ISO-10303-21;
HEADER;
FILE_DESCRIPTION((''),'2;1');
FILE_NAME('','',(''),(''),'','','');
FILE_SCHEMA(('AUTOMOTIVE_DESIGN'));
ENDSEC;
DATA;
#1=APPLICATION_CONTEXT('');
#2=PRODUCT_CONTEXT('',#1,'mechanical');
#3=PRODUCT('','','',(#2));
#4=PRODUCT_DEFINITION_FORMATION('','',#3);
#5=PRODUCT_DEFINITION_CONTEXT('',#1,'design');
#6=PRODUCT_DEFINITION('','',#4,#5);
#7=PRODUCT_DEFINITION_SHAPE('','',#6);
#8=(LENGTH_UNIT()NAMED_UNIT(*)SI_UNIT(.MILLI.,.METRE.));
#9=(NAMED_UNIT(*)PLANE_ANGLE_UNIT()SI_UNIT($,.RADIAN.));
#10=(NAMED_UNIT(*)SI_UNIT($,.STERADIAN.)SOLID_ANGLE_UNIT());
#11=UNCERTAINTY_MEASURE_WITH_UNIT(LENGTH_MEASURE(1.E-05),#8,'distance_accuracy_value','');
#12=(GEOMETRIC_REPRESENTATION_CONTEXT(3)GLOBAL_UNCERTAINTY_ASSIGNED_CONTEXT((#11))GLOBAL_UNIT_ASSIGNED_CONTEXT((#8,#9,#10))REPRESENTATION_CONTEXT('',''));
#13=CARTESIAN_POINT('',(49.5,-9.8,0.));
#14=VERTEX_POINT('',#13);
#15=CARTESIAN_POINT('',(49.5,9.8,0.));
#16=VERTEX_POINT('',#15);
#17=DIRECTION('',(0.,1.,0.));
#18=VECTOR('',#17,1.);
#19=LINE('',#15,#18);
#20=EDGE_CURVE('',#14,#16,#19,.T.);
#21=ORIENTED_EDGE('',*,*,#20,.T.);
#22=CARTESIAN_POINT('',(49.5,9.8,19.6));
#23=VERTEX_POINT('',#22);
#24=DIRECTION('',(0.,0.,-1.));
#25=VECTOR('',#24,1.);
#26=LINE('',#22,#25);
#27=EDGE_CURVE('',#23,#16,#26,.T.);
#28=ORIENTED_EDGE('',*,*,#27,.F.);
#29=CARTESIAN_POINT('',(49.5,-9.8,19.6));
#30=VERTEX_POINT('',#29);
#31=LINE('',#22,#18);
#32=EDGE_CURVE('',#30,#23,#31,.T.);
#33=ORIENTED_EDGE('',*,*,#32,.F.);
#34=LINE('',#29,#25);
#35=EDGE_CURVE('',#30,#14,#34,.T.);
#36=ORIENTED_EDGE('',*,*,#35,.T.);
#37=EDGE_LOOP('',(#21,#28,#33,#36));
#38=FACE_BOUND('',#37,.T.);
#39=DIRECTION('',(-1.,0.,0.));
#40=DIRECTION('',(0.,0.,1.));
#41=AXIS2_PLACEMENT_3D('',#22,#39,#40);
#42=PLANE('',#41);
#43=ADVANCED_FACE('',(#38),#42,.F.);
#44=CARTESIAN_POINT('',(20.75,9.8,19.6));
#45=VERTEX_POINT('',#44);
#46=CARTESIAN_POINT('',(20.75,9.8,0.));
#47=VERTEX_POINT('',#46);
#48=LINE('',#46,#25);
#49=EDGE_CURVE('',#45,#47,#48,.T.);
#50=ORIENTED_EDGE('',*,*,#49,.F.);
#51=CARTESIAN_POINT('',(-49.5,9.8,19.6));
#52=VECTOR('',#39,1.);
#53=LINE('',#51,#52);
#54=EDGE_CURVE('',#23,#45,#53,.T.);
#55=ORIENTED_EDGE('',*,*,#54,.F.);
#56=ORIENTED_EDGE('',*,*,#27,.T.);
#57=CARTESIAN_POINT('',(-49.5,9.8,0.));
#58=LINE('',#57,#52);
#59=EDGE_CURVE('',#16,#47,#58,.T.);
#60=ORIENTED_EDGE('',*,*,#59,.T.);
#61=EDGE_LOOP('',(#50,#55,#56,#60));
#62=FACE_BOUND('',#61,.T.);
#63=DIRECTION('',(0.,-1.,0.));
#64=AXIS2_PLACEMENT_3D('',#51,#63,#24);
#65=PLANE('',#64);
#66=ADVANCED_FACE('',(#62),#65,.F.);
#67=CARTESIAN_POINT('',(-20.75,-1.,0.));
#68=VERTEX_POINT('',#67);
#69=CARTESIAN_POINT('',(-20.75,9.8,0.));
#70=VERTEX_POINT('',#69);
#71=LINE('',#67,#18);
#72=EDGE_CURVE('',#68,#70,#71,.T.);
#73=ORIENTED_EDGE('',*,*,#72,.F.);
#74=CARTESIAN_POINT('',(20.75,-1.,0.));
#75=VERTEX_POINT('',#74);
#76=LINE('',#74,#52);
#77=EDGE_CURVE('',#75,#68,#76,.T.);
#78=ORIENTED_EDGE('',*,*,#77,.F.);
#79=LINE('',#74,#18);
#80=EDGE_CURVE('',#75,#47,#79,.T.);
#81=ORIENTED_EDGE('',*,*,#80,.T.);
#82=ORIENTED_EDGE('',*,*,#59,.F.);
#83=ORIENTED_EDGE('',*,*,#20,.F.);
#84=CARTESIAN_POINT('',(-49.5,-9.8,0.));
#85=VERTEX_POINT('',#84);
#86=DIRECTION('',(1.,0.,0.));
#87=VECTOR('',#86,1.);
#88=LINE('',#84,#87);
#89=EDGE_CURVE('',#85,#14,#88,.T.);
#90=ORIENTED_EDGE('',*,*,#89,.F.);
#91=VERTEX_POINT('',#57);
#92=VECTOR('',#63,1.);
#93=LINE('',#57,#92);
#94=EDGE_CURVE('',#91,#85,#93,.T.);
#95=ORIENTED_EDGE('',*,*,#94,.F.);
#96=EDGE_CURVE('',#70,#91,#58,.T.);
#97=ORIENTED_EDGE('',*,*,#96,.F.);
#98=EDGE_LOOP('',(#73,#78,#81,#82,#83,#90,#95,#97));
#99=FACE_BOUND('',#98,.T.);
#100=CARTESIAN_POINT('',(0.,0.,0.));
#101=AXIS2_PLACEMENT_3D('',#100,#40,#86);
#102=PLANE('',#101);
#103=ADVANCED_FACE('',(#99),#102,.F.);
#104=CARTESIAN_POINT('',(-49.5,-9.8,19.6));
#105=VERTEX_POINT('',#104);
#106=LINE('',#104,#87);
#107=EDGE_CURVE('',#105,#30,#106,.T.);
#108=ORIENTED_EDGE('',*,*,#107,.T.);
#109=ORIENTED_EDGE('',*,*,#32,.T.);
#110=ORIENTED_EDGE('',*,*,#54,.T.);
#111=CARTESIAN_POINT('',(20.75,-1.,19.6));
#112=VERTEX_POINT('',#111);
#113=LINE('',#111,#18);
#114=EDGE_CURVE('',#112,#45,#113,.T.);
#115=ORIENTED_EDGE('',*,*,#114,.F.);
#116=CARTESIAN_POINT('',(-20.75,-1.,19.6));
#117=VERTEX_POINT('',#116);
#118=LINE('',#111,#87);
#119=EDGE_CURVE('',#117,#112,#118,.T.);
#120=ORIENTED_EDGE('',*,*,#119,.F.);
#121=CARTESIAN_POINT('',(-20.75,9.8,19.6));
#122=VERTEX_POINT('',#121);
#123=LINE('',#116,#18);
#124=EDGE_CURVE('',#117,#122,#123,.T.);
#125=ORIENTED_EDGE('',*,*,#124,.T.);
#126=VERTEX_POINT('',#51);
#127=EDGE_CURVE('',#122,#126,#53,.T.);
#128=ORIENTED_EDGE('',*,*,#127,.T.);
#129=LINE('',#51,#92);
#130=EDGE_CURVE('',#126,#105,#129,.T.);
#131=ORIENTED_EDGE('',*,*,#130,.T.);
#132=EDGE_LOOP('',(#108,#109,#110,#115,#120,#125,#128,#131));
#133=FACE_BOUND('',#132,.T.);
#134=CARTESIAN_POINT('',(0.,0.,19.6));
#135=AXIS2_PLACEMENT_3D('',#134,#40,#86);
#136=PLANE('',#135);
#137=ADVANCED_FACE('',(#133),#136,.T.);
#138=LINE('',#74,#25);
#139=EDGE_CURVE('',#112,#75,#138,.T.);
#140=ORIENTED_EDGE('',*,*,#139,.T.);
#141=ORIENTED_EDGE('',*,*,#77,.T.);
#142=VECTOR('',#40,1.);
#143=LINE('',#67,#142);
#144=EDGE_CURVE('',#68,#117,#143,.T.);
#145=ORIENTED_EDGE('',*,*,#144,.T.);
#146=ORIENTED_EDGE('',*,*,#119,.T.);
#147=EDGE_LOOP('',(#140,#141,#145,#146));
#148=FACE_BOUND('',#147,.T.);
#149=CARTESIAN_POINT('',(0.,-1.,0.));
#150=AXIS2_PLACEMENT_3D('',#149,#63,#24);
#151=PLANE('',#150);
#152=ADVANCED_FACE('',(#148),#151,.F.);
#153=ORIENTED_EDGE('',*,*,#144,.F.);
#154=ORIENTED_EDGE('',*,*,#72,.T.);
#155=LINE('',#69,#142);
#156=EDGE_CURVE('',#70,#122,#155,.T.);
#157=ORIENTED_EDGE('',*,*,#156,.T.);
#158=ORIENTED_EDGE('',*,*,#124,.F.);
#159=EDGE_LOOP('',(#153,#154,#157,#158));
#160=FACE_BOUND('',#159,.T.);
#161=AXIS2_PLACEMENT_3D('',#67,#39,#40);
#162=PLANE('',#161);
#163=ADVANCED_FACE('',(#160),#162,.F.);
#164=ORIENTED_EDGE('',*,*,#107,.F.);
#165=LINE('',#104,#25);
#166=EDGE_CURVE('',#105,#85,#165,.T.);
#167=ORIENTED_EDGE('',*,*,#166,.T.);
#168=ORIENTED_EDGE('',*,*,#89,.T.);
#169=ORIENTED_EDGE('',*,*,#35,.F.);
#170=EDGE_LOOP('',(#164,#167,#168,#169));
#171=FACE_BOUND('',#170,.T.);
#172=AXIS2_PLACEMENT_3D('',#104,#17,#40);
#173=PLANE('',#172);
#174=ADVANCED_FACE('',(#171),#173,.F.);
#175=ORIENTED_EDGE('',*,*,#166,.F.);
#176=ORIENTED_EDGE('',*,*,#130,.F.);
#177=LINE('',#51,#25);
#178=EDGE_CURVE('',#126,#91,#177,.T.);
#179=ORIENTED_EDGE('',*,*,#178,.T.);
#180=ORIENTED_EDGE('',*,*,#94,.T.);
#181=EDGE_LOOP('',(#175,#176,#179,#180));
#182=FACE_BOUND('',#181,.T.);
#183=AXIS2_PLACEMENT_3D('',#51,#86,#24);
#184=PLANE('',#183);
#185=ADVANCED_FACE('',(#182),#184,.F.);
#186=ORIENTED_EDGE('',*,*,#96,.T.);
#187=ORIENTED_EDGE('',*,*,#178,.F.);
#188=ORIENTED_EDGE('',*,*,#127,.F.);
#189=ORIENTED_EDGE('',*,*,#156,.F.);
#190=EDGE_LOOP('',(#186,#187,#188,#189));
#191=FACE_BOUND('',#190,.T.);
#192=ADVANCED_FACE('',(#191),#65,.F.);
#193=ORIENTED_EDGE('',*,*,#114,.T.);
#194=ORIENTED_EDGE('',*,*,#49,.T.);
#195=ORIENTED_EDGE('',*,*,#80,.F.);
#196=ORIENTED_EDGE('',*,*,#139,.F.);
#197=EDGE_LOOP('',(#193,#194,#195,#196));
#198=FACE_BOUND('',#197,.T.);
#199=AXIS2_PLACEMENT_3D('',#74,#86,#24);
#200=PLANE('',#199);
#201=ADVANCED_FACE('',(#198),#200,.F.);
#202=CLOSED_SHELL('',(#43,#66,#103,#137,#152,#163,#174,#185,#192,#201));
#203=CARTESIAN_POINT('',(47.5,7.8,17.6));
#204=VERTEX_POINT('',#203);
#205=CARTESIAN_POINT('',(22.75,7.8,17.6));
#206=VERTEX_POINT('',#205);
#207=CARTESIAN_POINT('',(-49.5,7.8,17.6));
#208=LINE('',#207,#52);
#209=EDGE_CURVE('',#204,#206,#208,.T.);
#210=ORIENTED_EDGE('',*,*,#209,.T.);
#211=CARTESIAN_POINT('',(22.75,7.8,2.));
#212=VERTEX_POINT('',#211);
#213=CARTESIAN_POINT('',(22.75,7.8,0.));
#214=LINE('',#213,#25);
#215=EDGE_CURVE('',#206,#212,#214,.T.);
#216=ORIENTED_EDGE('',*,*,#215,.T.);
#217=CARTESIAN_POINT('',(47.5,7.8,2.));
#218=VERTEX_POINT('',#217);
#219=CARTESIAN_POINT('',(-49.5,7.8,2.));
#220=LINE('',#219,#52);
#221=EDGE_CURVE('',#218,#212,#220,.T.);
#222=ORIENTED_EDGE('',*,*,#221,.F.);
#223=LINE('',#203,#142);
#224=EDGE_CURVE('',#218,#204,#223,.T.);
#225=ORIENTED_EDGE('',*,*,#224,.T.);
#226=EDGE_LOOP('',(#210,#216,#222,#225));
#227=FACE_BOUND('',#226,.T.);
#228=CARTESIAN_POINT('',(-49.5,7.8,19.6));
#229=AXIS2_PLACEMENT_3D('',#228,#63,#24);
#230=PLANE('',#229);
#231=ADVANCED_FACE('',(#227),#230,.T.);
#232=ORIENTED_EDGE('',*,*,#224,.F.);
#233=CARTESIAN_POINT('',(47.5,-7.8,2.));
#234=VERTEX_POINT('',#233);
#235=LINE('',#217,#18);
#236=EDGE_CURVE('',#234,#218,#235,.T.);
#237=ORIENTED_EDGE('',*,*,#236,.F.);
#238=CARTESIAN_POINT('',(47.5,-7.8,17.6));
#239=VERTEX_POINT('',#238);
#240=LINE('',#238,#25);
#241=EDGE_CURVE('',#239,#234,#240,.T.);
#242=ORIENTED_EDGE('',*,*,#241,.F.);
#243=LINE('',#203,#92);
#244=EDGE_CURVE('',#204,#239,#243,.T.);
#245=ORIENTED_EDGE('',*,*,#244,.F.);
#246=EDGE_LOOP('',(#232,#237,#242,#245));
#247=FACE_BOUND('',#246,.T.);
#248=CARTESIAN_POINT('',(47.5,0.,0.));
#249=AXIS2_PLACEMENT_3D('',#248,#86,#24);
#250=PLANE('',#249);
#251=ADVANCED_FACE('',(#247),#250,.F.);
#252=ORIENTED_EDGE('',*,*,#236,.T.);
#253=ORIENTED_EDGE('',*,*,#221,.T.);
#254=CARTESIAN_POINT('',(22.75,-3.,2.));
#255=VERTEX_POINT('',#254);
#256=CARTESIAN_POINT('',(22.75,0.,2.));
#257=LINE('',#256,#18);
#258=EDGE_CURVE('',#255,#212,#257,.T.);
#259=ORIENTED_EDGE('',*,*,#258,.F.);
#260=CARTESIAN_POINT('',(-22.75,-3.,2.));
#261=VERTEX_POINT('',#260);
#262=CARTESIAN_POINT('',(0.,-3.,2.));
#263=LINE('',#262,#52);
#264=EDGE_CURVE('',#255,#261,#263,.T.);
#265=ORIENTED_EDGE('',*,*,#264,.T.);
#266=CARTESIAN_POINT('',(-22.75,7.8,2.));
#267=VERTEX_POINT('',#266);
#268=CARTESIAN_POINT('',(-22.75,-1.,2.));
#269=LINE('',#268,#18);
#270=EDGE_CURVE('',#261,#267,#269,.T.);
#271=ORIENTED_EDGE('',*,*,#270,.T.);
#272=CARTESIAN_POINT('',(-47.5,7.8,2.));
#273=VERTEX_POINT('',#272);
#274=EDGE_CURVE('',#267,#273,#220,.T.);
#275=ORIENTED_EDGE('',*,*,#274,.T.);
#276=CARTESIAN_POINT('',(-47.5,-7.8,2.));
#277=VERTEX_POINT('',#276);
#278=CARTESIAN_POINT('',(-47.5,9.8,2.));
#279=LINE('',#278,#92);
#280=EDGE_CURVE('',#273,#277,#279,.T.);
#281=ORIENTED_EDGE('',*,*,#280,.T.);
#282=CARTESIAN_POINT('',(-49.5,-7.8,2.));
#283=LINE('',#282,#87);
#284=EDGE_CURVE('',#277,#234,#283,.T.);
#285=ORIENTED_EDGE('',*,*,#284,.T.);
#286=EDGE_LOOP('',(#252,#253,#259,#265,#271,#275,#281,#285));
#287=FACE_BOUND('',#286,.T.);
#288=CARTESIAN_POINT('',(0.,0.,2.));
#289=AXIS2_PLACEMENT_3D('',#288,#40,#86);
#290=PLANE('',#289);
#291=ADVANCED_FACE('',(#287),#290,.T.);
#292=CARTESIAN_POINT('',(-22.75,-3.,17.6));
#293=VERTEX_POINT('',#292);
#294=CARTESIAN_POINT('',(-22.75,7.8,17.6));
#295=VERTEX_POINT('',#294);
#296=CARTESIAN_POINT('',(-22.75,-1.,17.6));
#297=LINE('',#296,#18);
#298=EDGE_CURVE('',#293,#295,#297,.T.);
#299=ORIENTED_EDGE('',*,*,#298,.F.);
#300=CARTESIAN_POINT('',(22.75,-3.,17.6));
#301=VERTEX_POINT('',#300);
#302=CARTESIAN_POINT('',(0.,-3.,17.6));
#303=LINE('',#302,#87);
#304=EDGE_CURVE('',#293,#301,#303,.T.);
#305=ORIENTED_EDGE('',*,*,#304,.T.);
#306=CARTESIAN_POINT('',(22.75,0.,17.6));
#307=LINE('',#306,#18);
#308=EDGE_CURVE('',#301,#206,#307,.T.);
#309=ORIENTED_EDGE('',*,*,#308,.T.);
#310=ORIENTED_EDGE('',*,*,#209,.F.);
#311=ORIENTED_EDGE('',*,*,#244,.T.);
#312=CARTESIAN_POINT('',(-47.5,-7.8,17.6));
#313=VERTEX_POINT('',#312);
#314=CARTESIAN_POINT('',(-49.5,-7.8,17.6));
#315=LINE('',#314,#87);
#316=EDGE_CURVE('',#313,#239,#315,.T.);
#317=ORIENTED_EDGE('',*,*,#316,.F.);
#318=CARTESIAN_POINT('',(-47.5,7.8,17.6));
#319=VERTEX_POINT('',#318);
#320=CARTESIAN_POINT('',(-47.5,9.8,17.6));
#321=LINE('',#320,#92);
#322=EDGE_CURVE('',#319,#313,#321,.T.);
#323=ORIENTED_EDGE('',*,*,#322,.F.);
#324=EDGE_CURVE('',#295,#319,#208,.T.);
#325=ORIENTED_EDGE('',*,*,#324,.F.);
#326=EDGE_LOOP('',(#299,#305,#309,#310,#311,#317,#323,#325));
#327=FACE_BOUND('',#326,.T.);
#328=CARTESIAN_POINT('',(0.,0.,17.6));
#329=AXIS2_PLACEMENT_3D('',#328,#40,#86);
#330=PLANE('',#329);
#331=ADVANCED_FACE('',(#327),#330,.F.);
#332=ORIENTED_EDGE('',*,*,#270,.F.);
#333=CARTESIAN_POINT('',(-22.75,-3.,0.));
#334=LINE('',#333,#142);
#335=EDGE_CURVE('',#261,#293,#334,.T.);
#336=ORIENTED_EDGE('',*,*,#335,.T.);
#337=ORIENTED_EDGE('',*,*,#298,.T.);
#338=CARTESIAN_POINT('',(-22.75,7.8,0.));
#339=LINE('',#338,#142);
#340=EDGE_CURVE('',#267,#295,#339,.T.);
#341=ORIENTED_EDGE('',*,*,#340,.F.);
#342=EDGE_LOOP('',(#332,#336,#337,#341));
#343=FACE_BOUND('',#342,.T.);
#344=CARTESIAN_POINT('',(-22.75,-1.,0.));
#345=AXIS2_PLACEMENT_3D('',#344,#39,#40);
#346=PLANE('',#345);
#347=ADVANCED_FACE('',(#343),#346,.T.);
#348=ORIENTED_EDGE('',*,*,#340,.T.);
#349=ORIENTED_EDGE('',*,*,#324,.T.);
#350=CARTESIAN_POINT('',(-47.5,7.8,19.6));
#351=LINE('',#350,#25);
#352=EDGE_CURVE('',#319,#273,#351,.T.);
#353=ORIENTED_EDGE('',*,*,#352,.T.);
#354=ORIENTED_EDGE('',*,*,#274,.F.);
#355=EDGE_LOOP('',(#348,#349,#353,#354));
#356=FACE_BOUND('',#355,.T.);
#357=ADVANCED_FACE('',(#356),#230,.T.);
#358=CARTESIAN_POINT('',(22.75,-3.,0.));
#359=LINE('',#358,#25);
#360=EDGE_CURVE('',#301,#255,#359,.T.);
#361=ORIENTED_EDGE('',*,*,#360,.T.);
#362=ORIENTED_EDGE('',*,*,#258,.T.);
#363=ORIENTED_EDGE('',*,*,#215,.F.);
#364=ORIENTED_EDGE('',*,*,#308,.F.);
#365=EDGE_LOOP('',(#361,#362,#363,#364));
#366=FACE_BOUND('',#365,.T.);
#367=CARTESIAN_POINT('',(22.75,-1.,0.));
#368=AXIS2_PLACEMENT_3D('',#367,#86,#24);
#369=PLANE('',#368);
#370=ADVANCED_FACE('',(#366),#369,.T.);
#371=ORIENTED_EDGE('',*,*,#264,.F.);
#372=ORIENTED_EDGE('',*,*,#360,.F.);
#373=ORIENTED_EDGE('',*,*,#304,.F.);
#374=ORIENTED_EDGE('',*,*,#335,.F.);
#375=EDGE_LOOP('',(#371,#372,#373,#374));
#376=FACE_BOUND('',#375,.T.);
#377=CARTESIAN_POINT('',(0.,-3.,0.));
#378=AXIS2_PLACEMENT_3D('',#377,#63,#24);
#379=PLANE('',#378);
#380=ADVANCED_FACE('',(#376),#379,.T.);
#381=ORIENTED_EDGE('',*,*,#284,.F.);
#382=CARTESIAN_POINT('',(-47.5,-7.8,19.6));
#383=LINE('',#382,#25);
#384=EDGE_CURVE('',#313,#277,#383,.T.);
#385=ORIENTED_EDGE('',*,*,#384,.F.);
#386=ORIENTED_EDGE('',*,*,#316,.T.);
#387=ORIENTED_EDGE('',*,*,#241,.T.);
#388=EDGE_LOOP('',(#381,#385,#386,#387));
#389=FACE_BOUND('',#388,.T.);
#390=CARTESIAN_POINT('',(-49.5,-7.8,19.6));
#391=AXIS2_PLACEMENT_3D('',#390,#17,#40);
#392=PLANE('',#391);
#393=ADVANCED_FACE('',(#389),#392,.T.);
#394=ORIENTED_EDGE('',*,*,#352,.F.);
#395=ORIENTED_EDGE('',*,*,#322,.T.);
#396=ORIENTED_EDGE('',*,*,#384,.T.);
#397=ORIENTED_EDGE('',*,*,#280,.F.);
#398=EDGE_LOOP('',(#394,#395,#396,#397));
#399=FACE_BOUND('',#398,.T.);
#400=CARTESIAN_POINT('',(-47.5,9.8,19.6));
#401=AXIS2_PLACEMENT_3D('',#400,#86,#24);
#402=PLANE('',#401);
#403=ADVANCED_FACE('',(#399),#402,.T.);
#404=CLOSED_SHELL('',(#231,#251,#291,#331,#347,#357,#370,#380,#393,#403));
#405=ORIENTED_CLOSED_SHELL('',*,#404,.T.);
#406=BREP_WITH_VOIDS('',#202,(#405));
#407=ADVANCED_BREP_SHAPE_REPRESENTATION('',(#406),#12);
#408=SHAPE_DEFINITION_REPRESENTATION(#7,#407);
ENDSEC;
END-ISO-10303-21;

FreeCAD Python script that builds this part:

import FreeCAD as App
import Part
import Sketcher
Q = App.Units.Quantity


def faces_at(feature, points):
    """Names of the faces that lie closest to the given points."""
    faces = feature.Shape.Faces
    near = lambda p: min(range(len(faces)), key=lambda i: faces[i].distToShape(Part.Vertex(*p))[0])
    return sorted({f"Face{near(p) + 1}" for p in points})

doc = App.newDocument("Part")
body = doc.addObject("PartDesign::Body", "Body")

sketch1 = doc.addObject("Sketcher::SketchObject", "Sketch")
body.addObject(sketch1)
sketch1.AttachmentSupport = (doc.XY_Plane, [""])
sketch1.MapMode = "FlatFace"
sketch1.addGeometry(Part.LineSegment(App.Vector(-50, 10, 0), App.Vector(-50, -10, 0)), False)
sketch1.addGeometry(Part.LineSegment(App.Vector(-50, -10, 0), App.Vector(50, -10, 0)), False)
sketch1.addGeometry(Part.LineSegment(App.Vector(50, -10, 0), App.Vector(50, 10, 0)), False)
sketch1.addGeometry(Part.LineSegment(App.Vector(50, 10, 0), App.Vector(-50, 10, 0)), False)
sketch1.addConstraint(Sketcher.Constraint("Coincident", 0, 2, 1, 1))
sketch1.addConstraint(Sketcher.Constraint("Coincident", 1, 2, 2, 1))
sketch1.addConstraint(Sketcher.Constraint("Coincident", 2, 2, 3, 1))
sketch1.addConstraint(Sketcher.Constraint("Coincident", 3, 2, 0, 1))
sketch1.addConstraint(Sketcher.Constraint("Vertical", 0))
sketch1.addConstraint(Sketcher.Constraint("Horizontal", 1))
sketch1.addConstraint(Sketcher.Constraint("Vertical", 2))
sketch1.addConstraint(Sketcher.Constraint("Horizontal", 3))
sketch1.addConstraint(Sketcher.Constraint("Symmetric", 0, 2, 2, 2, -1, 1))
sketch1.addConstraint(Sketcher.Constraint("DistanceX", 1, 1, 1, 2, Q("99 mm")))
sketch1.addConstraint(Sketcher.Constraint("DistanceY", 0, 2, 0, 1, Q("19.6 mm")))
pad1 = doc.addObject("PartDesign::Pad", "Pad")
body.addObject(pad1)
pad1.Profile = sketch1
pad1.Length = 19.6

sketch2 = doc.addObject("Sketcher::SketchObject", "Sketch001")
body.addObject(sketch2)
sketch2.AttachmentSupport = (doc.XZ_Plane, [""])
sketch2.MapMode = "FlatFace"
sketch2.AttachmentOffset = App.Placement(App.Vector(0, 0, -9.8), App.Rotation())
sketch2.addGeometry(Part.LineSegment(App.Vector(-21, 0, 0), App.Vector(-21, 20, 0)), False)
sketch2.addGeometry(Part.LineSegment(App.Vector(-21, 20, 0), App.Vector(21, 20, 0)), False)
sketch2.addGeometry(Part.LineSegment(App.Vector(21, 20, 0), App.Vector(21, 0, 0)), False)
sketch2.addGeometry(Part.LineSegment(App.Vector(21, 0, 0), App.Vector(-21, 0, 0)), False)
sketch2.addConstraint(Sketcher.Constraint("Coincident", 0, 2, 1, 1))
sketch2.addConstraint(Sketcher.Constraint("Coincident", 1, 2, 2, 1))
sketch2.addConstraint(Sketcher.Constraint("Coincident", 2, 2, 3, 1))
sketch2.addConstraint(Sketcher.Constraint("Coincident", 3, 2, 0, 1))
sketch2.addConstraint(Sketcher.Constraint("Vertical", 0))
sketch2.addConstraint(Sketcher.Constraint("Horizontal", 1))
sketch2.addConstraint(Sketcher.Constraint("Vertical", 2))
sketch2.addConstraint(Sketcher.Constraint("Horizontal", 3))
sketch2.addConstraint(Sketcher.Constraint("Symmetric", 2, 2, 3, 2, -1, 1))
sketch2.addConstraint(Sketcher.Constraint("DistanceX", 1, 1, 1, 2, Q("41.5 mm")))
sketch2.addConstraint(Sketcher.Constraint("DistanceY", 0, 1, 0, 2, Q("19.6 mm")))
pocket1 = doc.addObject("PartDesign::Pocket", "Pocket")
body.addObject(pocket1)
pocket1.Profile = sketch2
pocket1.Length = 10.8
pocket1.Reversed = True

sketch3 = doc.addObject("Sketcher::SketchObject", "Sketch002")
body.addObject(sketch3)
sketch3.AttachmentSupport = (doc.YZ_Plane, [""])
sketch3.MapMode = "FlatFace"
sketch3.AttachmentOffset = App.Placement(App.Vector(0, 0, 49.5), App.Rotation())
sketch3.addGeometry(Part.LineSegment(App.Vector(10, 20, 0), App.Vector(-10, 20, 0)), False)
sketch3.addGeometry(Part.LineSegment(App.Vector(-10, 20, 0), App.Vector(-10, 0, 0)), False)
sketch3.addGeometry(Part.LineSegment(App.Vector(-10, 0, 0), App.Vector(10, 0, 0)), False)
sketch3.addGeometry(Part.LineSegment(App.Vector(10, 0, 0), App.Vector(10, 20, 0)), False)
sketch3.addConstraint(Sketcher.Constraint("Coincident", 0, 2, 1, 1))
sketch3.addConstraint(Sketcher.Constraint("Coincident", 1, 2, 2, 1))
sketch3.addConstraint(Sketcher.Constraint("Coincident", 2, 2, 3, 1))
sketch3.addConstraint(Sketcher.Constraint("Coincident", 3, 2, 0, 1))
sketch3.addConstraint(Sketcher.Constraint("Horizontal", 0))
sketch3.addConstraint(Sketcher.Constraint("Vertical", 1))
sketch3.addConstraint(Sketcher.Constraint("Horizontal", 2))
sketch3.addConstraint(Sketcher.Constraint("Vertical", 3))
sketch3.addConstraint(Sketcher.Constraint("Symmetric", 1, 2, 2, 2, -1, 1))
sketch3.addConstraint(Sketcher.Constraint("Equal", 2, 1))
sketch3.addConstraint(Sketcher.Constraint("DistanceX", 0, 2, 0, 1, Q("19.6 mm")))
pad2 = doc.addObject("PartDesign::Pad", "Pad001")
body.addObject(pad2)
pad2.Profile = sketch3
pad2.Length = 0.5
pad2.Reversed = True
doc.recompute()

thickness = doc.addObject("PartDesign::Thickness", "Thickness")
body.addObject(thickness)
thickness.Base = (pad2, faces_at(pad2, [(49.5, 0, 9.8)]))
thickness.Value = 2
thickness.Reversed = True
thickness.Join = "Intersection"

sketch4 = doc.addObject("Sketcher::SketchObject", "Sketch003")
body.addObject(sketch4)
sketch4.AttachmentSupport = (doc.YZ_Plane, [""])
sketch4.MapMode = "FlatFace"
sketch4.AttachmentOffset = App.Placement(App.Vector(0, 0, 49.5), App.Rotation())
sketch4.addGeometry(Part.LineSegment(App.Vector(8, 18, 0), App.Vector(-8, 18, 0)), False)
sketch4.addGeometry(Part.LineSegment(App.Vector(-8, 18, 0), App.Vector(-8, 2, 0)), False)
sketch4.addGeometry(Part.LineSegment(App.Vector(-8, 2, 0), App.Vector(8, 2, 0)), False)
sketch4.addGeometry(Part.LineSegment(App.Vector(8, 2, 0), App.Vector(8, 18, 0)), False)
sketch4.addConstraint(Sketcher.Constraint("Coincident", 0, 2, 1, 1))
sketch4.addConstraint(Sketcher.Constraint("Coincident", 1, 2, 2, 1))
sketch4.addConstraint(Sketcher.Constraint("Coincident", 2, 2, 3, 1))
sketch4.addConstraint(Sketcher.Constraint("Coincident", 3, 2, 0, 1))
sketch4.addConstraint(Sketcher.Constraint("Horizontal", 0))
sketch4.addConstraint(Sketcher.Constraint("Vertical", 1))
sketch4.addConstraint(Sketcher.Constraint("Horizontal", 2))
sketch4.addConstraint(Sketcher.Constraint("Vertical", 3))
sketch4.addConstraint(Sketcher.Constraint("Equal", 2, 1))
sketch4.addConstraint(Sketcher.Constraint("DistanceX", 0, 2, 0, 1, Q("15.6 mm")))
sketch4.addConstraint(Sketcher.Constraint("DistanceY", -1, 1, 1, 2, Q("2 mm")))
sketch4.addConstraint(Sketcher.Constraint("DistanceX", 0, 2, -1, 1, Q("7.8 mm")))
pad3 = doc.addObject("PartDesign::Pad", "Pad002")
body.addObject(pad3)
pad3.Profile = sketch4
pad3.Length = 2
pad3.Reversed = True

doc.recompute()
